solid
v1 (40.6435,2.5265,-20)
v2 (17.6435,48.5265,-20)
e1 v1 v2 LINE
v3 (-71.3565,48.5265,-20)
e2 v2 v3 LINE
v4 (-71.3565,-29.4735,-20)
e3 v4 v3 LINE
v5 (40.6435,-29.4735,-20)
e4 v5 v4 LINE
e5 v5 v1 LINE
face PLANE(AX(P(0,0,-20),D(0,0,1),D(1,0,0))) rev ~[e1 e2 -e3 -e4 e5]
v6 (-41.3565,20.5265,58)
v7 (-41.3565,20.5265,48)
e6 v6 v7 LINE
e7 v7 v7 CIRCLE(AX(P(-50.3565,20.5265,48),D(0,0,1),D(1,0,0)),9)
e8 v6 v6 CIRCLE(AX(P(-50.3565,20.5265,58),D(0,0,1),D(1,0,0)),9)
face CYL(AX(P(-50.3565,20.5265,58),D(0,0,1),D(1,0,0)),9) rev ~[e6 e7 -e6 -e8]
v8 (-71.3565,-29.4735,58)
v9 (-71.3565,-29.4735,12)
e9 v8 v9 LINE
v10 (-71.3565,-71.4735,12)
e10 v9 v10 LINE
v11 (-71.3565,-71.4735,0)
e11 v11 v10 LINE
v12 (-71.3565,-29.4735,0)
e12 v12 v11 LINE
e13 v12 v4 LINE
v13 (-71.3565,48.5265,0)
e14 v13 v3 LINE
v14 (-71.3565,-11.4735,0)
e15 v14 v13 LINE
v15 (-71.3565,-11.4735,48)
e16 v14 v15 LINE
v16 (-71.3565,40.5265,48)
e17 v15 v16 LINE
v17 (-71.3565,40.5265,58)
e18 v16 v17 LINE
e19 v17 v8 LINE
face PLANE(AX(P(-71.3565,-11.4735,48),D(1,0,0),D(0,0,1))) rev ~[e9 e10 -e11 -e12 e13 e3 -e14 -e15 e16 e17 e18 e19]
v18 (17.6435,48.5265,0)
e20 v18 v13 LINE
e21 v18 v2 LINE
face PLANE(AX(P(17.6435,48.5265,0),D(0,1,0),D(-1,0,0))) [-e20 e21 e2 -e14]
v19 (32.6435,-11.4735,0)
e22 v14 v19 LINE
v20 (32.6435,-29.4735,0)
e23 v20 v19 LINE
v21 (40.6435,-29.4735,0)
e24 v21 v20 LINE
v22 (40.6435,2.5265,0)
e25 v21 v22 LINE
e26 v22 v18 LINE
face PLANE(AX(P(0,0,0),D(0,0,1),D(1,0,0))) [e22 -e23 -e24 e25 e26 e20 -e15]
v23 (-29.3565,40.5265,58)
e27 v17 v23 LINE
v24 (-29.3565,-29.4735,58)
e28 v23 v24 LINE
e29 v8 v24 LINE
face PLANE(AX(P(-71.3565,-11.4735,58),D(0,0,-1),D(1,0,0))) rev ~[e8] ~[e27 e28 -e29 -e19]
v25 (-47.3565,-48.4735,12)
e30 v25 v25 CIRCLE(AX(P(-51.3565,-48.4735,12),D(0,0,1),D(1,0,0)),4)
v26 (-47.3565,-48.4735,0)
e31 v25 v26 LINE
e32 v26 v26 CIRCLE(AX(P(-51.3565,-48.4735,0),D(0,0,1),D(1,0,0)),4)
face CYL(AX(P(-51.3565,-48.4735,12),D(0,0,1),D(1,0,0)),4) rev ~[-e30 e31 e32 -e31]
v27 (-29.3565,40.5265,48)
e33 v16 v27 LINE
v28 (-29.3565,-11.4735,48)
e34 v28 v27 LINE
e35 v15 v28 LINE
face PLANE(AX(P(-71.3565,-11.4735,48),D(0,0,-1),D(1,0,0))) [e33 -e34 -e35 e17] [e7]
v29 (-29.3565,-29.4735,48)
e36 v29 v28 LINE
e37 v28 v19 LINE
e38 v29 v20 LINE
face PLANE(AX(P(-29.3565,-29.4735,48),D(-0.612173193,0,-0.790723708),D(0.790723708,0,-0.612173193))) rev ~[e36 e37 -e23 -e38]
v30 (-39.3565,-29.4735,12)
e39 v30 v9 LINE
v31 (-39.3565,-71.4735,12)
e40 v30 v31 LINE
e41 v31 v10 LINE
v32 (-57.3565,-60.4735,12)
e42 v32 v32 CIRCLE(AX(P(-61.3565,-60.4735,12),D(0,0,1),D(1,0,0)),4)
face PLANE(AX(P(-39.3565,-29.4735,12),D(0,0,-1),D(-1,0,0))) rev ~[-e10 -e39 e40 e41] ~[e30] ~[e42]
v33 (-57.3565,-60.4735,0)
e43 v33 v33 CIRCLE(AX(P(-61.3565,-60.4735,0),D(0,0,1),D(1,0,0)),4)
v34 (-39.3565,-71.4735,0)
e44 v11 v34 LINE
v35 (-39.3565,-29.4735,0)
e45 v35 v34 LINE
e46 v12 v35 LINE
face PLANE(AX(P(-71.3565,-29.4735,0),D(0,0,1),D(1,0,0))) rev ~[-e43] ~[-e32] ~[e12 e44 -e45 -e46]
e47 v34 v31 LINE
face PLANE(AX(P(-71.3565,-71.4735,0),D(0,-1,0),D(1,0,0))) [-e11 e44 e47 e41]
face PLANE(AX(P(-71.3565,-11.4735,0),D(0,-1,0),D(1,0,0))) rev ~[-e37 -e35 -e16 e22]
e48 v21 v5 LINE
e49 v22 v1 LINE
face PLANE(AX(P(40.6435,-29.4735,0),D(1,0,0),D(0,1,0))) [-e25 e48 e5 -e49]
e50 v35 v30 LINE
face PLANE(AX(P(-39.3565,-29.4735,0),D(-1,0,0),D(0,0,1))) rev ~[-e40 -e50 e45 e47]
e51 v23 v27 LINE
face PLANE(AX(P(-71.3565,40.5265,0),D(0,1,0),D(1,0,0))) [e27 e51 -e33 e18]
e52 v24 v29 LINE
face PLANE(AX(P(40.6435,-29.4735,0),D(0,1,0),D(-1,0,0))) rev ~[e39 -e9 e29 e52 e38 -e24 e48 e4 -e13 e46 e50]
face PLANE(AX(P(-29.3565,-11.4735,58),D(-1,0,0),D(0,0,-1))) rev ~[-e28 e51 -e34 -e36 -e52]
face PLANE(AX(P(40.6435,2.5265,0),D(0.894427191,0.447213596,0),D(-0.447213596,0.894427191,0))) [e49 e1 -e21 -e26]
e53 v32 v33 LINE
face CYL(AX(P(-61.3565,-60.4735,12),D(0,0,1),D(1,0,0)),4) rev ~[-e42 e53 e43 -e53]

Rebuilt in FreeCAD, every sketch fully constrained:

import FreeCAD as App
import Part
import Sketcher

doc = App.newDocument("Part")
body = doc.addObject("PartDesign::Body", "Body")

sketch1 = body.newObject("Sketcher::SketchObject", "Sketch")
sketch1.AttachmentSupport = (doc.getObject("XY_Plane"), [""])
sketch1.MapMode = "FlatFace"
sketch1.addGeometry([
    Part.LineSegment(App.Vector(-71, -29, 0), App.Vector(41, -29, 0)),
    Part.LineSegment(App.Vector(41, -29, 0), App.Vector(41, 3, 0)),
    Part.LineSegment(App.Vector(41, 3, 0), App.Vector(18, 49, 0)),
    Part.LineSegment(App.Vector(18, 49, 0), App.Vector(-71, 49, 0)),
    Part.LineSegment(App.Vector(-71, 49, 0), App.Vector(-71, -29, 0)),
], False)
sketch1.addConstraint([
    Sketcher.Constraint("Coincident", 0, 2, 1, 1),
    Sketcher.Constraint("Coincident", 1, 2, 2, 1),
    Sketcher.Constraint("Coincident", 2, 2, 3, 1),
    Sketcher.Constraint("Coincident", 3, 2, 4, 1),
    Sketcher.Constraint("Coincident", 4, 2, 0, 1),
    Sketcher.Constraint("Horizontal", 0),
    Sketcher.Constraint("Vertical", 1),
    Sketcher.Constraint("Horizontal", 3),
    Sketcher.Constraint("Vertical", 4),
    Sketcher.Constraint("DistanceX", 0, 1, 0, 2, 112.0),
    Sketcher.Constraint("DistanceY", 1, 1, 1, 2, 32.0),
    Sketcher.Constraint("DistanceY", 4, 2, 4, 1, 78.0),
    Sketcher.Constraint("DistanceX", 2, 2, 1, 2, 23.0),
    Sketcher.Constraint("DistanceX", -1, 1, 0, 2, 40.6435),
    Sketcher.Constraint("DistanceY", 0, 2, -1, 1, 29.4735),
])
pad1 = body.newObject("PartDesign::Pad", "Pad")
pad1.Profile = sketch1
pad1.Length = 20
pad1.Reversed = True

sketch2 = body.newObject("Sketcher::SketchObject", "Sketch001")
sketch2.AttachmentSupport = (doc.getObject("XZ_Plane"), [""])
sketch2.MapMode = "FlatFace"
sketch2.AttachmentOffset = App.Placement(App.Vector(0, 0, 29.4735), App.Rotation())
sketch2.addGeometry([
    Part.LineSegment(App.Vector(-71, 58, 0), App.Vector(-71, 0, 0)),
    Part.LineSegment(App.Vector(-71, 0, 0), App.Vector(33, 0, 0)),
    Part.LineSegment(App.Vector(33, 0, 0), App.Vector(-29, 48, 0)),
    Part.LineSegment(App.Vector(-29, 48, 0), App.Vector(-29, 58, 0)),
    Part.LineSegment(App.Vector(-29, 58, 0), App.Vector(-71, 58, 0)),
], False)
sketch2.addConstraint([
    Sketcher.Constraint("Coincident", 0, 2, 1, 1),
    Sketcher.Constraint("Coincident", 1, 2, 2, 1),
    Sketcher.Constraint("Coincident", 2, 2, 3, 1),
    Sketcher.Constraint("Coincident", 3, 2, 4, 1),
    Sketcher.Constraint("Coincident", 4, 2, 0, 1),
    Sketcher.Constraint("Vertical", 0),
    Sketcher.Constraint("Horizontal", 1),
    Sketcher.Constraint("Vertical", 3),
    Sketcher.Constraint("Horizontal", 4),
    Sketcher.Constraint("PointOnObject", 0, 2, -1),
    Sketcher.Constraint("DistanceX", 4, 2, 4, 1, 42.0),
    Sketcher.Constraint("DistanceY", 0, 2, 0, 1, 58.0),
    Sketcher.Constraint("DistanceY", 3, 1, 3, 2, 10.0),
    Sketcher.Constraint("DistanceX", 1, 1, 1, 2, 104.0),
    Sketcher.Constraint("DistanceX", 0, 2, -1, 1, 71.3565),
])
pad2 = body.newObject("PartDesign::Pad", "Pad001")
pad2.Profile = sketch2
pad2.Length = 18
pad2.Reversed = True

sketch3 = body.newObject("Sketcher::SketchObject", "Sketch002")
sketch3.AttachmentSupport = (doc.getObject("XZ_Plane"), [""])
sketch3.MapMode = "FlatFace"
sketch3.AttachmentOffset = App.Placement(App.Vector(0, 0, 29.4735), App.Rotation())
sketch3.addGeometry([
    Part.LineSegment(App.Vector(-71, 12, 0), App.Vector(-71, 0, 0)),
    Part.LineSegment(App.Vector(-71, 0, 0), App.Vector(-39, 0, 0)),
    Part.LineSegment(App.Vector(-39, 0, 0), App.Vector(-39, 12, 0)),
    Part.LineSegment(App.Vector(-39, 12, 0), App.Vector(-71, 12, 0)),
], False)
sketch3.addConstraint([
    Sketcher.Constraint("Coincident", 0, 2, 1, 1),
    Sketcher.Constraint("Coincident", 1, 2, 2, 1),
    Sketcher.Constraint("Coincident", 2, 2, 3, 1),
    Sketcher.Constraint("Coincident", 3, 2, 0, 1),
    Sketcher.Constraint("Vertical", 0),
    Sketcher.Constraint("Horizontal", 1),
    Sketcher.Constraint("Vertical", 2),
    Sketcher.Constraint("Horizontal", 3),
    Sketcher.Constraint("PointOnObject", 0, 2, -1),
    Sketcher.Constraint("DistanceX", 1, 1, 1, 2, 32.0),
    Sketcher.Constraint("DistanceY", 0, 2, 0, 1, 12.0),
    Sketcher.Constraint("DistanceX", 0, 2, -1, 1, 71.3565),
])
pad3 = body.newObject("PartDesign::Pad", "Pad002")
pad3.Profile = sketch3
pad3.Length = 42

sketch4 = body.newObject("Sketcher::SketchObject", "Sketch003")
sketch4.AttachmentSupport = (doc.getObject("XZ_Plane"), [""])
sketch4.MapMode = "FlatFace"
sketch4.AttachmentOffset = App.Placement(App.Vector(0, 0, 11.4735), App.Rotation())
sketch4.addGeometry([
    Part.LineSegment(App.Vector(-29, 58, 0), App.Vector(-29, 48, 0)),
    Part.LineSegment(App.Vector(-29, 48, 0), App.Vector(-71, 48, 0)),
    Part.LineSegment(App.Vector(-71, 48, 0), App.Vector(-71, 58, 0)),
    Part.LineSegment(App.Vector(-71, 58, 0), App.Vector(-29, 58, 0)),
], False)
sketch4.addConstraint([
    Sketcher.Constraint("Coincident", 0, 2, 1, 1),
    Sketcher.Constraint("Coincident", 1, 2, 2, 1),
    Sketcher.Constraint("Coincident", 2, 2, 3, 1),
    Sketcher.Constraint("Coincident", 3, 2, 0, 1),
    Sketcher.Constraint("Vertical", 0),
    Sketcher.Constraint("Horizontal", 1),
    Sketcher.Constraint("Vertical", 2),
    Sketcher.Constraint("Horizontal", 3),
    Sketcher.Constraint("DistanceX", 1, 2, 1, 1, 42.0),
    Sketcher.Constraint("DistanceY", 0, 2, 0, 1, 10.0),
    Sketcher.Constraint("DistanceY", -1, 1, 0, 2, 48.0),
    Sketcher.Constraint("DistanceX", 0, 2, -1, 1, 29.3565),
])
pad4 = body.newObject("PartDesign::Pad", "Pad003")
pad4.Profile = sketch4
pad4.Length = 52
pad4.Reversed = True

sketch5 = body.newObject("Sketcher::SketchObject", "Sketch004")
sketch5.AttachmentSupport = (doc.getObject("XY_Plane"), [""])
sketch5.MapMode = "FlatFace"
sketch5.AttachmentOffset = App.Placement(App.Vector(0, 0, 12), App.Rotation())
sketch5.addGeometry([
    Part.Circle(App.Vector(-61.4, -60.5, 0), App.Vector(0, 0, 1), 4),
    Part.Circle(App.Vector(-51.4, -48.5, 0), App.Vector(0, 0, 1), 4),
], False)
sketch5.addConstraint([
    Sketcher.Constraint("Equal", 0, 1),
    Sketcher.Constraint("Diameter", 0, 8.0),
    Sketcher.Constraint("DistanceX", 0, 3, 1, 3, 10.0),
    Sketcher.Constraint("DistanceY", 0, 3, 1, 3, 12.0),
    Sketcher.Constraint("DistanceX", 0, 3, -1, 1, 61.3565),
    Sketcher.Constraint("DistanceY", 0, 3, -1, 1, 60.4735),
])
pocket1 = body.newObject("PartDesign::Pocket", "Pocket")
pocket1.Profile = sketch5
pocket1.Length = 52

sketch6 = body.newObject("Sketcher::SketchObject", "Sketch005")
sketch6.AttachmentSupport = (doc.getObject("XY_Plane"), [""])
sketch6.MapMode = "FlatFace"
sketch6.AttachmentOffset = App.Placement(App.Vector(0, 0, 58), App.Rotation())
sketch6.addGeometry(Part.Circle(App.Vector(-50, 21, 0), App.Vector(0, 0, 1), 9), False)
sketch6.addConstraint([
    Sketcher.Constraint("Diameter", 0, 18.0),
    Sketcher.Constraint("DistanceX", 0, 3, -1, 1, 50.3565),
    Sketcher.Constraint("DistanceY", -1, 1, 0, 3, 20.5265),
])
pocket2 = body.newObject("PartDesign::Pocket", "Pocket001")
pocket2.Profile = sketch6
pocket2.Length = 20

doc.recompute()
